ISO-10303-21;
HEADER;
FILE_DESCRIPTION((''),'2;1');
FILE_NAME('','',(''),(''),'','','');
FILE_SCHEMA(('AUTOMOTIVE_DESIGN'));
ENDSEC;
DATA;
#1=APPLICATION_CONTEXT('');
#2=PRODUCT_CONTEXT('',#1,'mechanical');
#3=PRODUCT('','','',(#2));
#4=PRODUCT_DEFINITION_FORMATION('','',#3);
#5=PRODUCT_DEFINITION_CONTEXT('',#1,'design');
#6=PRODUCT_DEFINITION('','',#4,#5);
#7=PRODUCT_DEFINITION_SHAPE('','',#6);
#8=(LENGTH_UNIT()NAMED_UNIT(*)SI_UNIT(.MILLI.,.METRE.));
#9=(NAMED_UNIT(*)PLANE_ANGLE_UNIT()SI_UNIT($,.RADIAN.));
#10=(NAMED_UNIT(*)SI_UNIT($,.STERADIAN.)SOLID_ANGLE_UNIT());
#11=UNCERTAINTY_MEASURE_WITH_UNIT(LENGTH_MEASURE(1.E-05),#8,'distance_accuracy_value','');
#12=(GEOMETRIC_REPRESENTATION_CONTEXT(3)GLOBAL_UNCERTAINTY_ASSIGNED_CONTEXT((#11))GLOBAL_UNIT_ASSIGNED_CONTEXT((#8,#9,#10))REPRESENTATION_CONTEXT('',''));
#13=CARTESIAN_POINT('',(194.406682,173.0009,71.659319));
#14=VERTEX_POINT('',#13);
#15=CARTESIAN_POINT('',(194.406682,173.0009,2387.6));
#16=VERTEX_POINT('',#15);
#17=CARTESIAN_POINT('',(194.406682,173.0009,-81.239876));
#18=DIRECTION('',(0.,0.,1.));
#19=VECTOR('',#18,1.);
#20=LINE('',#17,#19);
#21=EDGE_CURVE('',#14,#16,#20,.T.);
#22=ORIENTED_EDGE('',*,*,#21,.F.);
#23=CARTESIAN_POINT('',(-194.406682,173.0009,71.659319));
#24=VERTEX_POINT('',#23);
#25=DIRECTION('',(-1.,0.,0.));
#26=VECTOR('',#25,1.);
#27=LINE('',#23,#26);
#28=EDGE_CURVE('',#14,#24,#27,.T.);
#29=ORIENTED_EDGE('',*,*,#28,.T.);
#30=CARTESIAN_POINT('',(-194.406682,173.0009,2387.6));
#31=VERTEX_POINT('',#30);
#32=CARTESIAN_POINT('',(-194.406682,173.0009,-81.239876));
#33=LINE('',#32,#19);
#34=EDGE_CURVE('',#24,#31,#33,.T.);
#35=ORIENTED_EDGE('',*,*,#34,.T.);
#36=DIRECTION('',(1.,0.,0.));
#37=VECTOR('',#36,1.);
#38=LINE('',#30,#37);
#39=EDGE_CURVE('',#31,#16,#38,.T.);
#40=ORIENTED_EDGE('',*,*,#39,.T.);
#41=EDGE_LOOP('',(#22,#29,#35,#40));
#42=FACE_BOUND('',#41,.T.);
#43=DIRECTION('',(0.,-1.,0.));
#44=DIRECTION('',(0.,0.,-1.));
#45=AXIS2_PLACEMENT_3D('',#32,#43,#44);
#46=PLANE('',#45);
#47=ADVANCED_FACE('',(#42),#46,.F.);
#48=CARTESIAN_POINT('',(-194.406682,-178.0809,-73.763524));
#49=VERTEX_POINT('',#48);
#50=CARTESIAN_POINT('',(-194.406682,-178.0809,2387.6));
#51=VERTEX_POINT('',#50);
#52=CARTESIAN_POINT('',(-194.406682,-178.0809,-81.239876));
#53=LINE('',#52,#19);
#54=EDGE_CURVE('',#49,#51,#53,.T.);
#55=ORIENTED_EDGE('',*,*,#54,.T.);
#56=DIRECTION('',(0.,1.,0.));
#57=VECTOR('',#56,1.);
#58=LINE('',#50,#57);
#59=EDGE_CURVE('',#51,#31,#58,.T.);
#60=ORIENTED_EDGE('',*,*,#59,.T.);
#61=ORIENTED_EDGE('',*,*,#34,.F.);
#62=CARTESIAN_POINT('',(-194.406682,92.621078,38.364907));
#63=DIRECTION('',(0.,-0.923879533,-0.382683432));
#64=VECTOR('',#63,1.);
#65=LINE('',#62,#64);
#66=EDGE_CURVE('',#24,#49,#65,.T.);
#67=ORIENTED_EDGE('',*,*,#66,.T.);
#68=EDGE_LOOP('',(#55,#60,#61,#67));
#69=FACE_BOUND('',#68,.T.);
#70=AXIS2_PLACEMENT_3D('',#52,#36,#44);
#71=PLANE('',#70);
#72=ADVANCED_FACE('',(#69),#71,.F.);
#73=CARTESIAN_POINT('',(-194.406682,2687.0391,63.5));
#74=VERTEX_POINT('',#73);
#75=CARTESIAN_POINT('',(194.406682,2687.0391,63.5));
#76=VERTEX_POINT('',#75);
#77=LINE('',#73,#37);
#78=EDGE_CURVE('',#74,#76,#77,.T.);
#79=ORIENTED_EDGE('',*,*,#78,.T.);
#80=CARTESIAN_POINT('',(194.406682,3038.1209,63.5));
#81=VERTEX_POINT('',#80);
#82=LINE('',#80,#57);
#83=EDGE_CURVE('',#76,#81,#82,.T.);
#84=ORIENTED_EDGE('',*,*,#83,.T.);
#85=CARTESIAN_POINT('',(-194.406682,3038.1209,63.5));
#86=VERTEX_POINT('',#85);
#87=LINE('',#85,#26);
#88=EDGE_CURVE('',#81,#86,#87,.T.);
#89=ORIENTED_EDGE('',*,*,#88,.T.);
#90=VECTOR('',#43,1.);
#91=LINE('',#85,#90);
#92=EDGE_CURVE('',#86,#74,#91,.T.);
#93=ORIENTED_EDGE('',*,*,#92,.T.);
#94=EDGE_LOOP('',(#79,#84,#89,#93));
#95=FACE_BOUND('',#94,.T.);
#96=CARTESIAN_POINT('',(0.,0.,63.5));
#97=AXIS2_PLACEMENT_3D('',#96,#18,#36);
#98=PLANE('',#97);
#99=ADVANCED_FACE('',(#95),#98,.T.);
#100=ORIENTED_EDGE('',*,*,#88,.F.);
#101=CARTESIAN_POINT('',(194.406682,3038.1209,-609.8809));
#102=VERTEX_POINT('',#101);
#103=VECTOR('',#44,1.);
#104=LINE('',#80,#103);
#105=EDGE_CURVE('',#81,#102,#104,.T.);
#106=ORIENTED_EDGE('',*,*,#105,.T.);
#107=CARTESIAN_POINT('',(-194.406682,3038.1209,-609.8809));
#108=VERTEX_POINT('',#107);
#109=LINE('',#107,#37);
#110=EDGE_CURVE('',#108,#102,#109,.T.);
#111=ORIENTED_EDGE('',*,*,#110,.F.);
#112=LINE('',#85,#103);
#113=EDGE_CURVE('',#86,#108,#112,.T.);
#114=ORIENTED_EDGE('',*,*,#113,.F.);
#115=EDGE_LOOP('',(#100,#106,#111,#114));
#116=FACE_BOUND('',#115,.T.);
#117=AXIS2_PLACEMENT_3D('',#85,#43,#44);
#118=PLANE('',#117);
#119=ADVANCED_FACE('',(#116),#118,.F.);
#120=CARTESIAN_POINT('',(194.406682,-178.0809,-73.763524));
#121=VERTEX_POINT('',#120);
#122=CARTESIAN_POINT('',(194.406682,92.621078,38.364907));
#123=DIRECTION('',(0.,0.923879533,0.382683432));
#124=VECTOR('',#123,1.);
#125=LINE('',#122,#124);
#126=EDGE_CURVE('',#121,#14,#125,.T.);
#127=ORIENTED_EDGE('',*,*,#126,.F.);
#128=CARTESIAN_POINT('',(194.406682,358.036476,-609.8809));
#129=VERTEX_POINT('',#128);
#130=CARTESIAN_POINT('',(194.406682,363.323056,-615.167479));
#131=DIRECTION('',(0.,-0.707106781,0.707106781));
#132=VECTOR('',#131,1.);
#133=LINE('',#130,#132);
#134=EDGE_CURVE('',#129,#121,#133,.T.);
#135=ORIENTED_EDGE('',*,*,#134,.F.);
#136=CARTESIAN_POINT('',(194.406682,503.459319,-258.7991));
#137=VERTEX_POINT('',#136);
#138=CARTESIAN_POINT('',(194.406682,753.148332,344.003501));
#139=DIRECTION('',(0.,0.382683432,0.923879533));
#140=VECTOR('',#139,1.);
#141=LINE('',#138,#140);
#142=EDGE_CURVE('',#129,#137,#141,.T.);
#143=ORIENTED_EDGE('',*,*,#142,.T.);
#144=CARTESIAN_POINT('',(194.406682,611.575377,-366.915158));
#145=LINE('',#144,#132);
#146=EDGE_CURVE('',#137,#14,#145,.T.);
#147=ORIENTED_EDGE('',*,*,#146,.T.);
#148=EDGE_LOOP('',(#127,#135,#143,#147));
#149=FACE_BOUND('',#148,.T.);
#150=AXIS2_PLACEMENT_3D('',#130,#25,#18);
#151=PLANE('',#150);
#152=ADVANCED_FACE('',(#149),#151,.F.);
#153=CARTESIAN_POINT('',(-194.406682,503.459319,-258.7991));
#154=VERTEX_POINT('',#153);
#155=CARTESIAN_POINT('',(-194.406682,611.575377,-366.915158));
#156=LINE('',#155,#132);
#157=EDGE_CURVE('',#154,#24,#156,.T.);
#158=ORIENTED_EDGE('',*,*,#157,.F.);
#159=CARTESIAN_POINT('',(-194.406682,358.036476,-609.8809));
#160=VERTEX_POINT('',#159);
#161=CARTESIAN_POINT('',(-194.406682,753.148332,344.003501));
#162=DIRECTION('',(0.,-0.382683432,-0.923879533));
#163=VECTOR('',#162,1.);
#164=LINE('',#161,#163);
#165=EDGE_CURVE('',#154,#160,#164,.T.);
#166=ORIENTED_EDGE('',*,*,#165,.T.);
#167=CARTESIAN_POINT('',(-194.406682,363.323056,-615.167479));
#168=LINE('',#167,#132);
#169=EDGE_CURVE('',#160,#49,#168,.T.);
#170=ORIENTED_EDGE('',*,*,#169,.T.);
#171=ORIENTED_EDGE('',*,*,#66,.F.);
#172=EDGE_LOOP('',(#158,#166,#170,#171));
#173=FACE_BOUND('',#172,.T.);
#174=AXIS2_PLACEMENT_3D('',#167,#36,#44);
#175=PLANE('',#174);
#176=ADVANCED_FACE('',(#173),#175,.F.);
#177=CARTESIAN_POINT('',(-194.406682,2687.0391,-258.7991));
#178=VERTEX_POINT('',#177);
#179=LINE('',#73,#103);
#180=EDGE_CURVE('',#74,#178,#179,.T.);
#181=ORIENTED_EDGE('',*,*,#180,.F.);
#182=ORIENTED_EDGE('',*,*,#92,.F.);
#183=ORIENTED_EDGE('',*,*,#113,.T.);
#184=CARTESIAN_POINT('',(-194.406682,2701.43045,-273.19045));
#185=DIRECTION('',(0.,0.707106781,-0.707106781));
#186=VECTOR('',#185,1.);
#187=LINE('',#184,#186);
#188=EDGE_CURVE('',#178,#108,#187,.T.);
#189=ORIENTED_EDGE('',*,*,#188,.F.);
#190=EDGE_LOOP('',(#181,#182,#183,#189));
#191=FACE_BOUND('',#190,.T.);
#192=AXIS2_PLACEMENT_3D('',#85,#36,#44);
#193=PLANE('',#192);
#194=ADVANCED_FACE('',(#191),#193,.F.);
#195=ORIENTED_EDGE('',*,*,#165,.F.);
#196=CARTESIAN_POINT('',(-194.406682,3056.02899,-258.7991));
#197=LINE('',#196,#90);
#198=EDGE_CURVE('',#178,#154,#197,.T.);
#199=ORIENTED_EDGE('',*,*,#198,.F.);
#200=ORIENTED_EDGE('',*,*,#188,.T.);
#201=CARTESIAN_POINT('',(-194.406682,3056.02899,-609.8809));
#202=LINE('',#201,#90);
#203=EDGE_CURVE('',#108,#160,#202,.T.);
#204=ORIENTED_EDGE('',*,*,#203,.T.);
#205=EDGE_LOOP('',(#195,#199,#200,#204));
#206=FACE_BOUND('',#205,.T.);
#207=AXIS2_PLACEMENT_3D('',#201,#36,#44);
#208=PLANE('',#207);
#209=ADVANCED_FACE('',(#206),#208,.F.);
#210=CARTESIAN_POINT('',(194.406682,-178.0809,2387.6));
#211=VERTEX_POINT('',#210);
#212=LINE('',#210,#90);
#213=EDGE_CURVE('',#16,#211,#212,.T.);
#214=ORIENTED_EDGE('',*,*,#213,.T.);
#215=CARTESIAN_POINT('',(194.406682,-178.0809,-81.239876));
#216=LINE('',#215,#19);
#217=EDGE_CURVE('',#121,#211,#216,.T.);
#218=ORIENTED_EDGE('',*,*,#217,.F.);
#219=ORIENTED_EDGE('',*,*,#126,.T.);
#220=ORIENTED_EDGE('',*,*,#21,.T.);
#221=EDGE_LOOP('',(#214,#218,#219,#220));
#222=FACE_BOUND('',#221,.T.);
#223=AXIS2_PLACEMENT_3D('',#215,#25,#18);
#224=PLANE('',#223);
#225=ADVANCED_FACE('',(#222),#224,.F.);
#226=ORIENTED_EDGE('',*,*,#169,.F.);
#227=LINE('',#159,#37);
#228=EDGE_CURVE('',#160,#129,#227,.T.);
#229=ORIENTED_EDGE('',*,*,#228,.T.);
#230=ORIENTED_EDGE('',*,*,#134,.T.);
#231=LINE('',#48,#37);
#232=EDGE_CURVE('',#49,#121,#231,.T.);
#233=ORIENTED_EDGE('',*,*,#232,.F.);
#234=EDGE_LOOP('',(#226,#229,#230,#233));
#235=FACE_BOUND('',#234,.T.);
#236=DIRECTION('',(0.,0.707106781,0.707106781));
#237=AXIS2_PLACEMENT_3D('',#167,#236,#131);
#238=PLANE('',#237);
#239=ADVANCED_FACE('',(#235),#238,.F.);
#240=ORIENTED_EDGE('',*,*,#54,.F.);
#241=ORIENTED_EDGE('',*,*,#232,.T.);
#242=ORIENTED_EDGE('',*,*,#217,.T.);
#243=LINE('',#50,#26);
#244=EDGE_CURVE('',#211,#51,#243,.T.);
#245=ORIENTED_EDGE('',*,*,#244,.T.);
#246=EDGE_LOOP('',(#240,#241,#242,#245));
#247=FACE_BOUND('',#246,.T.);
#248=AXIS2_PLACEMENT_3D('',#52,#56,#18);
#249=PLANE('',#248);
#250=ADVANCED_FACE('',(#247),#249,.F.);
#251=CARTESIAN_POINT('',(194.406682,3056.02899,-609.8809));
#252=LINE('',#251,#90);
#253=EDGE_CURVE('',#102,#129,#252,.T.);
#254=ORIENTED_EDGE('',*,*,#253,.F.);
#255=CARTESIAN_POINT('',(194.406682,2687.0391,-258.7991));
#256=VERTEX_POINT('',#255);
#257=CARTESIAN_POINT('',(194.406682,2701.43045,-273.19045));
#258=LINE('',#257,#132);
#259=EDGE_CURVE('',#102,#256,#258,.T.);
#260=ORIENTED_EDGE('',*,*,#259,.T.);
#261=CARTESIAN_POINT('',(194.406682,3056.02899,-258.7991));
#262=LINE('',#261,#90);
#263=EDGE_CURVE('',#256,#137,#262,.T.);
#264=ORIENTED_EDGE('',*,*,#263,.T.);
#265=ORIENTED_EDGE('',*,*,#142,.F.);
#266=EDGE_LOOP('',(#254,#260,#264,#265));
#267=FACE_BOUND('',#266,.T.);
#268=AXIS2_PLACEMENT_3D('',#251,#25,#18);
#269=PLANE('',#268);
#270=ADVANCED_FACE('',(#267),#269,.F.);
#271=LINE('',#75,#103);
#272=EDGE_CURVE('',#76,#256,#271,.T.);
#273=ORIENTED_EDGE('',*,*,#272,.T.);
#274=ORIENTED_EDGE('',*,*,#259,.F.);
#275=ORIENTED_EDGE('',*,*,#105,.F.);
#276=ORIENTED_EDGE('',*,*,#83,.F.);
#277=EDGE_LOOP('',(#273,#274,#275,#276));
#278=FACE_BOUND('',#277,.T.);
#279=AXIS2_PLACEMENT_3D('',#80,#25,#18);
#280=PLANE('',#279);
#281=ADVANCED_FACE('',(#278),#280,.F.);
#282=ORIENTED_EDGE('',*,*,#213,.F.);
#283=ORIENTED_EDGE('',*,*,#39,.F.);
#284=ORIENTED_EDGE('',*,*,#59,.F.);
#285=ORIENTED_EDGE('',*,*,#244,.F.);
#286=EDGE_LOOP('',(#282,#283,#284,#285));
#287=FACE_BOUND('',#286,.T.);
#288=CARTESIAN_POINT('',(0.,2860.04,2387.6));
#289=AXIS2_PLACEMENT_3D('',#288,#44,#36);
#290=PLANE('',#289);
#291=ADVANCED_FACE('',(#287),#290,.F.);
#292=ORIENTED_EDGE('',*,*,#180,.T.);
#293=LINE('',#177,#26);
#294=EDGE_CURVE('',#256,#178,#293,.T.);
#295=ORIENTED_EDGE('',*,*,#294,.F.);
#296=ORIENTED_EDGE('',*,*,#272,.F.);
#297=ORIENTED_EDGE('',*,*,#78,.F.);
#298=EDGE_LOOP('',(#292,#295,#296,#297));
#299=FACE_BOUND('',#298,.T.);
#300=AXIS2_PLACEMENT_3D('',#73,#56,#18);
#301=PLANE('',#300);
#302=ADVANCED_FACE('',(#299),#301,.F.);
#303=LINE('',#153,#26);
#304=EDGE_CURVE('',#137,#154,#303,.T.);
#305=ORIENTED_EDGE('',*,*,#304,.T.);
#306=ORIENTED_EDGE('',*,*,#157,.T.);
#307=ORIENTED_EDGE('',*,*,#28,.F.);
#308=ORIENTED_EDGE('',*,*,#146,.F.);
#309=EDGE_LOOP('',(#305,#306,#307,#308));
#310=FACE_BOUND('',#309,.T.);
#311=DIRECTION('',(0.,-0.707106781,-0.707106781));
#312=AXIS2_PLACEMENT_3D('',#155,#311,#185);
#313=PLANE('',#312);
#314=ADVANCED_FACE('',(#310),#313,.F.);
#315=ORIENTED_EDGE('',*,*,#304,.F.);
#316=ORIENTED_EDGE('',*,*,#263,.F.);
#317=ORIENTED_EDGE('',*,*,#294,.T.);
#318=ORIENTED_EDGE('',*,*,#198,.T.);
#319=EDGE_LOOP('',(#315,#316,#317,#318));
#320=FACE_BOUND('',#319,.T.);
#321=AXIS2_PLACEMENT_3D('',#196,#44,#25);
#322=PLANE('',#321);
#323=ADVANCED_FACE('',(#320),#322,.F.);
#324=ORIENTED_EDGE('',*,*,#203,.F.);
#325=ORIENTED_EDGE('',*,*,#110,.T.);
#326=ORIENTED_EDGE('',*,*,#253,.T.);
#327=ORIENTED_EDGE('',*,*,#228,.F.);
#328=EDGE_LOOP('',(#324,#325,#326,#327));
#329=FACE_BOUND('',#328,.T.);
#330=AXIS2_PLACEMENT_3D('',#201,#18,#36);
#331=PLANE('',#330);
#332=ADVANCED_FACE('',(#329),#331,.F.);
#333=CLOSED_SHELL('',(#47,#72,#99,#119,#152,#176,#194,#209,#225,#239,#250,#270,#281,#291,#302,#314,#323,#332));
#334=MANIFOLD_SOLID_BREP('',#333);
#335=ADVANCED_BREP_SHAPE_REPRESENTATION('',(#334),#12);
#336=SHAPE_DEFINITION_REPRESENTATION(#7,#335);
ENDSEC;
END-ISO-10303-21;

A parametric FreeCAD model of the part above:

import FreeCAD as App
import Part
import Sketcher

V = App.Vector
Q = App.Units.Quantity

doc = App.newDocument("Part")
params = doc.addObject("Spreadsheet::Sheet", "Params")
for row, (alias, value) in enumerate([
    ("sketch2_height", "94 in"),
    ("sketch2_width", "95.6 in"),
    ("sketch2_height2", "19.5 in"),
], start=1):
    params.set(f"A{row}", alias)
    params.set(f"B{row}", "=" + value)
    params.setAlias(f"B{row}", alias)

body = doc.addObject("PartDesign::Body", "Body")

sketch1 = body.newObject("Sketcher::SketchObject", "Sketch")
sketch1.AttachmentSupport = (doc.getObject("XY_Plane"), [""])
sketch1.MapMode = "FlatFace"
sketch1.addGeometry([
    Part.LineSegment(V(-194, 3038, 0), V(-194, 2687, 0)),
    Part.LineSegment(V(-194, 2687, 0), V(194, 2687, 0)),
    Part.LineSegment(V(194, 2687, 0), V(194, 3038, 0)),
    Part.LineSegment(V(194, 3038, 0), V(-194, 3038, 0)),
], False)
sketch1.addConstraint([
    Sketcher.Constraint("Coincident", 0, 2, 1, 1),
    Sketcher.Constraint("Coincident", 1, 2, 2, 1),
    Sketcher.Constraint("Coincident", 2, 2, 3, 1),
    Sketcher.Constraint("Coincident", 3, 2, 0, 1),
    Sketcher.Constraint("Vertical", 0),
    Sketcher.Constraint("Horizontal", 1),
    Sketcher.Constraint("Vertical", 2),
    Sketcher.Constraint("Horizontal", 3),
    Sketcher.Constraint("DistanceY", 0, 2, 0, 1, 351.0818),
    Sketcher.Constraint("DistanceY", -1, 1, 0, 2, 2687.0391),
    Sketcher.Constraint("DistanceX", 1, 1, 1, 2, 388.813364),
    Sketcher.Constraint("DistanceX", 0, 2, -1, 1, 194.406682),
])

sketch2 = body.newObject("Sketcher::SketchObject", "Sketch001")
sketch2.AttachmentSupport = (doc.getObject("YZ_Plane"), [""])
sketch2.MapMode = "FlatFace"
sketch2.addGeometry([
    Part.LineSegment(V(0, 2388, 0), V(0, 0, 0)),
    Part.LineSegment(V(0, 0, 0), V(432, -432, 0)),
    Part.LineSegment(V(432, -432, 0), V(2860, -432, 0)),
    Part.LineSegment(V(2860, -432, 0), V(2860, 64, 0)),
], False)
sketch2.addConstraint([
    Sketcher.Constraint("Coincident", 0, 2, 1, 1),
    Sketcher.Constraint("Coincident", 1, 2, 2, 1),
    Sketcher.Constraint("Coincident", 2, 2, 3, 1),
    Sketcher.Constraint("Vertical", 0),
    Sketcher.Constraint("Horizontal", 2),
    Sketcher.Constraint("Vertical", 3),
    Sketcher.Constraint("Coincident", 0, 2, -1, 1),
    Sketcher.Constraint("DistanceY", 0, 2, 0, 1, Q("94 in")),
    Sketcher.Constraint("DistanceX", 2, 1, 2, 2, Q("95.6 in")),
    Sketcher.Constraint("DistanceY", 3, 1, 3, 2, Q("19.5 in")),
    Sketcher.Constraint("DistanceX", -1, 1, 1, 2, Q("17 in")),
    Sketcher.Constraint("DistanceY", 1, 2, -1, 1, Q("17 in")),
])
sketch2.setExpression("Constraints[7]", "Params.sketch2_height")
sketch2.setExpression("Constraints[8]", "Params.sketch2_width")
sketch2.setExpression("Constraints[9]", "Params.sketch2_height2")
doc.recompute()

additivepipe = body.newObject("PartDesign::AdditivePipe", "AdditivePipe")
additivepipe.Profile = sketch1
additivepipe.Spine = (sketch2, ["Edge1", "Edge2", "Edge3", "Edge4"])
additivepipe.Transition = "Right corner"

doc.recompute()
